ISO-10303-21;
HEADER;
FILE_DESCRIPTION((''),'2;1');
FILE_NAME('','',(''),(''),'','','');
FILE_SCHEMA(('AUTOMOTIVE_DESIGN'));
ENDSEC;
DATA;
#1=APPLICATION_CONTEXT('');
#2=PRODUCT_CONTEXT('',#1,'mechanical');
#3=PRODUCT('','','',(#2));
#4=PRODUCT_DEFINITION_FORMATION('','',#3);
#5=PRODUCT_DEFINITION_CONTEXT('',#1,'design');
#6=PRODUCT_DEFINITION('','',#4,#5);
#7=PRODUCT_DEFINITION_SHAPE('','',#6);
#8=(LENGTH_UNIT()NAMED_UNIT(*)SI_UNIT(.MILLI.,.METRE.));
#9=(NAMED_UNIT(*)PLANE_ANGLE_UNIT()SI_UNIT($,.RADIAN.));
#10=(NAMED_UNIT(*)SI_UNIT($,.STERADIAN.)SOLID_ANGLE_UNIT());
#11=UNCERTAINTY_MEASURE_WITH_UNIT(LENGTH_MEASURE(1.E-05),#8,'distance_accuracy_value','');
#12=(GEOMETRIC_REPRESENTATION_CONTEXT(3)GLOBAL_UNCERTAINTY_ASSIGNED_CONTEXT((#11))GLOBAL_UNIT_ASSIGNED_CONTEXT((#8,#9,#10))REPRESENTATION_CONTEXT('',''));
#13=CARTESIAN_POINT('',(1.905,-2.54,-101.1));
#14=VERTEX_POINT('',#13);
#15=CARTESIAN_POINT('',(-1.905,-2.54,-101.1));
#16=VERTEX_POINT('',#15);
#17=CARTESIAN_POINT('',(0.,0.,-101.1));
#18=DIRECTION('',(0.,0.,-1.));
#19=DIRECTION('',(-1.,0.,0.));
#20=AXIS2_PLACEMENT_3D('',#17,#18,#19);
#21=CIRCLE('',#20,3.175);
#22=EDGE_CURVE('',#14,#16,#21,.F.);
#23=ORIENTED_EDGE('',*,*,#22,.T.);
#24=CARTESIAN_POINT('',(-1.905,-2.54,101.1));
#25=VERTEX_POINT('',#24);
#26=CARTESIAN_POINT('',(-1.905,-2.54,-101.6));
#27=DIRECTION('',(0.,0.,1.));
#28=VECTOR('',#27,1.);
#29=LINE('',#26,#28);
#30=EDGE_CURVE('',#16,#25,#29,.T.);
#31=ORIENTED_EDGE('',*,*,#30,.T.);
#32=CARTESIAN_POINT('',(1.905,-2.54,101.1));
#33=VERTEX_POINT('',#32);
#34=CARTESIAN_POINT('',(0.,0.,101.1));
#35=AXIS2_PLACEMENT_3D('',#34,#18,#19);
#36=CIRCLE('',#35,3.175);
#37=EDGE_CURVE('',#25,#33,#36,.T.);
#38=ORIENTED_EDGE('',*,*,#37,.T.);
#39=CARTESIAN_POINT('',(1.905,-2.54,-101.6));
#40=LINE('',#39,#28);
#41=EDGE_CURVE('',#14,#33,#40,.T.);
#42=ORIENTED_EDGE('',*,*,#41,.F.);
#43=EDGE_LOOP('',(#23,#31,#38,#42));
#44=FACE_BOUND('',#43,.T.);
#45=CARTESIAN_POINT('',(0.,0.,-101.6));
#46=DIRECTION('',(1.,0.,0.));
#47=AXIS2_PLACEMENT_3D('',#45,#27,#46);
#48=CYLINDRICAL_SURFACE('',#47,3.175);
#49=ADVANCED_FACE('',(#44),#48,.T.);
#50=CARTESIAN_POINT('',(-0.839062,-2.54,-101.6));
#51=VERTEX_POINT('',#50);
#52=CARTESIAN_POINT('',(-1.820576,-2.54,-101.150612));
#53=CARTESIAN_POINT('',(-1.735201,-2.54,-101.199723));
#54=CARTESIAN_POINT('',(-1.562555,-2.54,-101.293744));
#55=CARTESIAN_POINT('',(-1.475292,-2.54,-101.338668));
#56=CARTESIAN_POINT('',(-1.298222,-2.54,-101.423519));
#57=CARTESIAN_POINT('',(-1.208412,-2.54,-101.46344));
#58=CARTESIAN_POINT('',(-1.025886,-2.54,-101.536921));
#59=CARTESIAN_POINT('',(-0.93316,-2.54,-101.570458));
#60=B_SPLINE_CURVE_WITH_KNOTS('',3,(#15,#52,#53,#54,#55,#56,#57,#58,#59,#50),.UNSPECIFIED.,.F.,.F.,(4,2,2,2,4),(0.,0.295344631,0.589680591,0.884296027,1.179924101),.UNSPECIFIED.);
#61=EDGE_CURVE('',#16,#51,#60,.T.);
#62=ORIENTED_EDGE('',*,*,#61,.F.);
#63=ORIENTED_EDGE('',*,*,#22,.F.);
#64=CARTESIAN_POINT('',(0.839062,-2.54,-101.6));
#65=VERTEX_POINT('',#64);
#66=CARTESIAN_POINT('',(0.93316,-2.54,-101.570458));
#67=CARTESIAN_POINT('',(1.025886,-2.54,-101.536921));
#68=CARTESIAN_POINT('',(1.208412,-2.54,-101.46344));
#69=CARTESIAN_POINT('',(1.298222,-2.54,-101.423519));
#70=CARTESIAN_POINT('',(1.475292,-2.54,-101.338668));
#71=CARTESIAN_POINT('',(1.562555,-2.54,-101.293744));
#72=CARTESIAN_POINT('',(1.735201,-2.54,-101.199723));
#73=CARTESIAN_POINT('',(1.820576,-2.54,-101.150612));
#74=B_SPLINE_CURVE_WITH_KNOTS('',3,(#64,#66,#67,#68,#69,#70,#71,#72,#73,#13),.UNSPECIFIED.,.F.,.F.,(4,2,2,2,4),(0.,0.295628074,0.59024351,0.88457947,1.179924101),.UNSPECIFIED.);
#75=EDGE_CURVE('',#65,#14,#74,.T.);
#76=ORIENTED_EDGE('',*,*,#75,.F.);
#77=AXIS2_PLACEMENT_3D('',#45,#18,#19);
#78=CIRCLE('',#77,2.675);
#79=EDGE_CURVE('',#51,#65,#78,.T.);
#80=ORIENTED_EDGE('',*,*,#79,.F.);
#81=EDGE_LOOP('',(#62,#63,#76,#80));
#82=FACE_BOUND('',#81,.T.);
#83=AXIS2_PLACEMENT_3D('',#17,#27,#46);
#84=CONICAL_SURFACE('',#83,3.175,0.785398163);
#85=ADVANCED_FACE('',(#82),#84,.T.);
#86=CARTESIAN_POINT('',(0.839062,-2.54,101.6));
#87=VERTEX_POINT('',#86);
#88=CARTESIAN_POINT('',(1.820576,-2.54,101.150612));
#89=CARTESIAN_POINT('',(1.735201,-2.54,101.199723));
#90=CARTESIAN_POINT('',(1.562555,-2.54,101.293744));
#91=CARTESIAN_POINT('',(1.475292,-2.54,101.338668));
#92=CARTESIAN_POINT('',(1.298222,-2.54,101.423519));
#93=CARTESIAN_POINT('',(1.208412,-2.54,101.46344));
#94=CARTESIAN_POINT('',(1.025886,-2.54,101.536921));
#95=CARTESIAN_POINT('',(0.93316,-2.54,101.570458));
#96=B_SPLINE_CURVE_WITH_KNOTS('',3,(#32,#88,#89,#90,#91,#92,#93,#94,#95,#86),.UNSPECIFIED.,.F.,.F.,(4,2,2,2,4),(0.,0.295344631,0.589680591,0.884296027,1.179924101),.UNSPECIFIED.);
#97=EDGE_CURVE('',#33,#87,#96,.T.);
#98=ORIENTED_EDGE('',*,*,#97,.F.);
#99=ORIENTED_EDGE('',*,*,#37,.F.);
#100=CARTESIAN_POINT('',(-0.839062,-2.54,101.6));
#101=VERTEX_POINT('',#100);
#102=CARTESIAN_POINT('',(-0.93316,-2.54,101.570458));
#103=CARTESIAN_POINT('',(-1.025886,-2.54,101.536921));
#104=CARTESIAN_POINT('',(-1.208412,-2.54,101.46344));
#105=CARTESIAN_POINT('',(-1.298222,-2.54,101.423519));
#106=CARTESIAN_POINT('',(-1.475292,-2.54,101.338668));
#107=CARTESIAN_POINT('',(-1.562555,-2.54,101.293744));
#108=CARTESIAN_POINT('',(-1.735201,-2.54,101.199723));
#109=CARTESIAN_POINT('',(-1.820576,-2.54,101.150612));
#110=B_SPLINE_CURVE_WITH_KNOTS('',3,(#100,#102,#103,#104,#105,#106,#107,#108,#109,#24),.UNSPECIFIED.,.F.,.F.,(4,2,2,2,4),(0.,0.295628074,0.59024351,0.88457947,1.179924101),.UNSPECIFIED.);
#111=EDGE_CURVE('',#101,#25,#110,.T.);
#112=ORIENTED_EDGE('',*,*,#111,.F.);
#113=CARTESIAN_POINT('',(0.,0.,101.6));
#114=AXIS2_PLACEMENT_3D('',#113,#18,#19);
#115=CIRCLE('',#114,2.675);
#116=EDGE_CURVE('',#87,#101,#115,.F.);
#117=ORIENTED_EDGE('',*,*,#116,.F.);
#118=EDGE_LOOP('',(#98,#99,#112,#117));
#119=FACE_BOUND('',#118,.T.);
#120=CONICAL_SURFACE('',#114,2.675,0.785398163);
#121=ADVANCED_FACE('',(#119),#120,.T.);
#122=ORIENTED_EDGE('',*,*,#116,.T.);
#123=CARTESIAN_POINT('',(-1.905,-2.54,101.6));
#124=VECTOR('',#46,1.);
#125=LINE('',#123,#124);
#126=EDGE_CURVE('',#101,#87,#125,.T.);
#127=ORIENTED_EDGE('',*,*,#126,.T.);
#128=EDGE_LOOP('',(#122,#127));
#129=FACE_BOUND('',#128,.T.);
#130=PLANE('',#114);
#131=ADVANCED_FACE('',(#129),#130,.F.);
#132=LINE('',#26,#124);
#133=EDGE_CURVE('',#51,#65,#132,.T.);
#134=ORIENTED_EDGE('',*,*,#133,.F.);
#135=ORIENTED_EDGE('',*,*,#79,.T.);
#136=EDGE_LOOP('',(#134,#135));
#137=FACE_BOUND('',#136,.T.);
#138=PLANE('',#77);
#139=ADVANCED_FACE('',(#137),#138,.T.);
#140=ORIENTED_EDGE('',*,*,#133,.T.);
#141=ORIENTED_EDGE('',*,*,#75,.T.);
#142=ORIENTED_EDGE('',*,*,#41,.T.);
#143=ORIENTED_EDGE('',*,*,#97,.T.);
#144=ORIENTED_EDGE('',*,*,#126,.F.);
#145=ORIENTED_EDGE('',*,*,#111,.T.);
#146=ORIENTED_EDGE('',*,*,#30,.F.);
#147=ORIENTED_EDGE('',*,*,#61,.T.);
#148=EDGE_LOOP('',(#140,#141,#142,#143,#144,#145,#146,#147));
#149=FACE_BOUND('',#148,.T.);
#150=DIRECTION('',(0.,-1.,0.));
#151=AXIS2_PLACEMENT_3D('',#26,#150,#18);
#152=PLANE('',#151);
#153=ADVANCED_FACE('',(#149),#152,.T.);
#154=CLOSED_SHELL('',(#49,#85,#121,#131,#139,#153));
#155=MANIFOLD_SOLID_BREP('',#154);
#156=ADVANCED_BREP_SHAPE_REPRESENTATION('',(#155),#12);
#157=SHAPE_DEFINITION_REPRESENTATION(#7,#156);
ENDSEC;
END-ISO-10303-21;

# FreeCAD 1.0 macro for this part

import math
import FreeCAD as App
import Part
import Sketcher
from FreeCAD import Vector
Q = App.Units.Quantity


def edges_at(feature, points):
    """Names of the edges that pass closest to the given points."""
    edges = feature.Shape.Edges
    near = lambda p: min(range(len(edges)), key=lambda i: edges[i].distToShape(Part.Vertex(*p))[0])
    return sorted({f"Edge{near(p) + 1}" for p in points})

doc = App.newDocument("Part")
body = doc.addObject("PartDesign::Body", "Body")

# Sketch on XY plane
sketch1 = body.newObject("Sketcher::SketchObject", "Sketch")
sketch1.AttachmentSupport = (doc.getObject("XY_Plane"), [""])
sketch1.MapMode = "FlatFace"
sketch1.addGeometry([
    Part.LineSegment(Vector(-1.905, -2.54, 0), Vector(1.905, -2.54, 0)),
    Part.ArcOfCircle(Part.Circle(Vector(0, 0, 0), Vector(0, 0, 1), 3.175), math.radians(-53.130102), math.radians(233.130102)),
], False)
sketch1.addConstraint([
    Sketcher.Constraint("Coincident", 0, 1, 1, 2),
    Sketcher.Constraint("Coincident", 1, 1, 0, 2),
    Sketcher.Constraint("Horizontal", 0),
    Sketcher.Constraint("Coincident", 1, 3, -1, 1),
    Sketcher.Constraint("Radius", 1, Q("0.125 in")),
    Sketcher.Constraint("DistanceX", 0, 1, 0, 2, Q("0.15 in")),
])

# Sketch on XZ plane
sketch2 = body.newObject("Sketcher::SketchObject", "Sketch001")
sketch2.AttachmentSupport = (doc.getObject("XZ_Plane"), [""])
sketch2.MapMode = "FlatFace"
sketch2.addGeometry(Part.LineSegment(Vector(0, 101.6, 0), Vector(0, -101.6, 0)), False)
sketch2.addConstraint([
    Sketcher.Constraint("Vertical", 0),
    Sketcher.Constraint("Symmetric", 0, 1, 0, 2, -1, 1),
    Sketcher.Constraint("DistanceY", 0, 2, 0, 1, Q("8 in")),
])
doc.recompute()

additivepipe = body.newObject("PartDesign::AdditivePipe", "AdditivePipe")
additivepipe.Profile = sketch1
additivepipe.Spine = (sketch2, ["Edge1"])
doc.recompute()

chamfer = body.newObject("PartDesign::Chamfer", "Chamfer")
chamfer.Base = (additivepipe, edges_at(additivepipe, [(0, 3.175, 101.6), (0, 3.175, -101.6)]))
chamfer.Size = 0.5

doc.recompute()
